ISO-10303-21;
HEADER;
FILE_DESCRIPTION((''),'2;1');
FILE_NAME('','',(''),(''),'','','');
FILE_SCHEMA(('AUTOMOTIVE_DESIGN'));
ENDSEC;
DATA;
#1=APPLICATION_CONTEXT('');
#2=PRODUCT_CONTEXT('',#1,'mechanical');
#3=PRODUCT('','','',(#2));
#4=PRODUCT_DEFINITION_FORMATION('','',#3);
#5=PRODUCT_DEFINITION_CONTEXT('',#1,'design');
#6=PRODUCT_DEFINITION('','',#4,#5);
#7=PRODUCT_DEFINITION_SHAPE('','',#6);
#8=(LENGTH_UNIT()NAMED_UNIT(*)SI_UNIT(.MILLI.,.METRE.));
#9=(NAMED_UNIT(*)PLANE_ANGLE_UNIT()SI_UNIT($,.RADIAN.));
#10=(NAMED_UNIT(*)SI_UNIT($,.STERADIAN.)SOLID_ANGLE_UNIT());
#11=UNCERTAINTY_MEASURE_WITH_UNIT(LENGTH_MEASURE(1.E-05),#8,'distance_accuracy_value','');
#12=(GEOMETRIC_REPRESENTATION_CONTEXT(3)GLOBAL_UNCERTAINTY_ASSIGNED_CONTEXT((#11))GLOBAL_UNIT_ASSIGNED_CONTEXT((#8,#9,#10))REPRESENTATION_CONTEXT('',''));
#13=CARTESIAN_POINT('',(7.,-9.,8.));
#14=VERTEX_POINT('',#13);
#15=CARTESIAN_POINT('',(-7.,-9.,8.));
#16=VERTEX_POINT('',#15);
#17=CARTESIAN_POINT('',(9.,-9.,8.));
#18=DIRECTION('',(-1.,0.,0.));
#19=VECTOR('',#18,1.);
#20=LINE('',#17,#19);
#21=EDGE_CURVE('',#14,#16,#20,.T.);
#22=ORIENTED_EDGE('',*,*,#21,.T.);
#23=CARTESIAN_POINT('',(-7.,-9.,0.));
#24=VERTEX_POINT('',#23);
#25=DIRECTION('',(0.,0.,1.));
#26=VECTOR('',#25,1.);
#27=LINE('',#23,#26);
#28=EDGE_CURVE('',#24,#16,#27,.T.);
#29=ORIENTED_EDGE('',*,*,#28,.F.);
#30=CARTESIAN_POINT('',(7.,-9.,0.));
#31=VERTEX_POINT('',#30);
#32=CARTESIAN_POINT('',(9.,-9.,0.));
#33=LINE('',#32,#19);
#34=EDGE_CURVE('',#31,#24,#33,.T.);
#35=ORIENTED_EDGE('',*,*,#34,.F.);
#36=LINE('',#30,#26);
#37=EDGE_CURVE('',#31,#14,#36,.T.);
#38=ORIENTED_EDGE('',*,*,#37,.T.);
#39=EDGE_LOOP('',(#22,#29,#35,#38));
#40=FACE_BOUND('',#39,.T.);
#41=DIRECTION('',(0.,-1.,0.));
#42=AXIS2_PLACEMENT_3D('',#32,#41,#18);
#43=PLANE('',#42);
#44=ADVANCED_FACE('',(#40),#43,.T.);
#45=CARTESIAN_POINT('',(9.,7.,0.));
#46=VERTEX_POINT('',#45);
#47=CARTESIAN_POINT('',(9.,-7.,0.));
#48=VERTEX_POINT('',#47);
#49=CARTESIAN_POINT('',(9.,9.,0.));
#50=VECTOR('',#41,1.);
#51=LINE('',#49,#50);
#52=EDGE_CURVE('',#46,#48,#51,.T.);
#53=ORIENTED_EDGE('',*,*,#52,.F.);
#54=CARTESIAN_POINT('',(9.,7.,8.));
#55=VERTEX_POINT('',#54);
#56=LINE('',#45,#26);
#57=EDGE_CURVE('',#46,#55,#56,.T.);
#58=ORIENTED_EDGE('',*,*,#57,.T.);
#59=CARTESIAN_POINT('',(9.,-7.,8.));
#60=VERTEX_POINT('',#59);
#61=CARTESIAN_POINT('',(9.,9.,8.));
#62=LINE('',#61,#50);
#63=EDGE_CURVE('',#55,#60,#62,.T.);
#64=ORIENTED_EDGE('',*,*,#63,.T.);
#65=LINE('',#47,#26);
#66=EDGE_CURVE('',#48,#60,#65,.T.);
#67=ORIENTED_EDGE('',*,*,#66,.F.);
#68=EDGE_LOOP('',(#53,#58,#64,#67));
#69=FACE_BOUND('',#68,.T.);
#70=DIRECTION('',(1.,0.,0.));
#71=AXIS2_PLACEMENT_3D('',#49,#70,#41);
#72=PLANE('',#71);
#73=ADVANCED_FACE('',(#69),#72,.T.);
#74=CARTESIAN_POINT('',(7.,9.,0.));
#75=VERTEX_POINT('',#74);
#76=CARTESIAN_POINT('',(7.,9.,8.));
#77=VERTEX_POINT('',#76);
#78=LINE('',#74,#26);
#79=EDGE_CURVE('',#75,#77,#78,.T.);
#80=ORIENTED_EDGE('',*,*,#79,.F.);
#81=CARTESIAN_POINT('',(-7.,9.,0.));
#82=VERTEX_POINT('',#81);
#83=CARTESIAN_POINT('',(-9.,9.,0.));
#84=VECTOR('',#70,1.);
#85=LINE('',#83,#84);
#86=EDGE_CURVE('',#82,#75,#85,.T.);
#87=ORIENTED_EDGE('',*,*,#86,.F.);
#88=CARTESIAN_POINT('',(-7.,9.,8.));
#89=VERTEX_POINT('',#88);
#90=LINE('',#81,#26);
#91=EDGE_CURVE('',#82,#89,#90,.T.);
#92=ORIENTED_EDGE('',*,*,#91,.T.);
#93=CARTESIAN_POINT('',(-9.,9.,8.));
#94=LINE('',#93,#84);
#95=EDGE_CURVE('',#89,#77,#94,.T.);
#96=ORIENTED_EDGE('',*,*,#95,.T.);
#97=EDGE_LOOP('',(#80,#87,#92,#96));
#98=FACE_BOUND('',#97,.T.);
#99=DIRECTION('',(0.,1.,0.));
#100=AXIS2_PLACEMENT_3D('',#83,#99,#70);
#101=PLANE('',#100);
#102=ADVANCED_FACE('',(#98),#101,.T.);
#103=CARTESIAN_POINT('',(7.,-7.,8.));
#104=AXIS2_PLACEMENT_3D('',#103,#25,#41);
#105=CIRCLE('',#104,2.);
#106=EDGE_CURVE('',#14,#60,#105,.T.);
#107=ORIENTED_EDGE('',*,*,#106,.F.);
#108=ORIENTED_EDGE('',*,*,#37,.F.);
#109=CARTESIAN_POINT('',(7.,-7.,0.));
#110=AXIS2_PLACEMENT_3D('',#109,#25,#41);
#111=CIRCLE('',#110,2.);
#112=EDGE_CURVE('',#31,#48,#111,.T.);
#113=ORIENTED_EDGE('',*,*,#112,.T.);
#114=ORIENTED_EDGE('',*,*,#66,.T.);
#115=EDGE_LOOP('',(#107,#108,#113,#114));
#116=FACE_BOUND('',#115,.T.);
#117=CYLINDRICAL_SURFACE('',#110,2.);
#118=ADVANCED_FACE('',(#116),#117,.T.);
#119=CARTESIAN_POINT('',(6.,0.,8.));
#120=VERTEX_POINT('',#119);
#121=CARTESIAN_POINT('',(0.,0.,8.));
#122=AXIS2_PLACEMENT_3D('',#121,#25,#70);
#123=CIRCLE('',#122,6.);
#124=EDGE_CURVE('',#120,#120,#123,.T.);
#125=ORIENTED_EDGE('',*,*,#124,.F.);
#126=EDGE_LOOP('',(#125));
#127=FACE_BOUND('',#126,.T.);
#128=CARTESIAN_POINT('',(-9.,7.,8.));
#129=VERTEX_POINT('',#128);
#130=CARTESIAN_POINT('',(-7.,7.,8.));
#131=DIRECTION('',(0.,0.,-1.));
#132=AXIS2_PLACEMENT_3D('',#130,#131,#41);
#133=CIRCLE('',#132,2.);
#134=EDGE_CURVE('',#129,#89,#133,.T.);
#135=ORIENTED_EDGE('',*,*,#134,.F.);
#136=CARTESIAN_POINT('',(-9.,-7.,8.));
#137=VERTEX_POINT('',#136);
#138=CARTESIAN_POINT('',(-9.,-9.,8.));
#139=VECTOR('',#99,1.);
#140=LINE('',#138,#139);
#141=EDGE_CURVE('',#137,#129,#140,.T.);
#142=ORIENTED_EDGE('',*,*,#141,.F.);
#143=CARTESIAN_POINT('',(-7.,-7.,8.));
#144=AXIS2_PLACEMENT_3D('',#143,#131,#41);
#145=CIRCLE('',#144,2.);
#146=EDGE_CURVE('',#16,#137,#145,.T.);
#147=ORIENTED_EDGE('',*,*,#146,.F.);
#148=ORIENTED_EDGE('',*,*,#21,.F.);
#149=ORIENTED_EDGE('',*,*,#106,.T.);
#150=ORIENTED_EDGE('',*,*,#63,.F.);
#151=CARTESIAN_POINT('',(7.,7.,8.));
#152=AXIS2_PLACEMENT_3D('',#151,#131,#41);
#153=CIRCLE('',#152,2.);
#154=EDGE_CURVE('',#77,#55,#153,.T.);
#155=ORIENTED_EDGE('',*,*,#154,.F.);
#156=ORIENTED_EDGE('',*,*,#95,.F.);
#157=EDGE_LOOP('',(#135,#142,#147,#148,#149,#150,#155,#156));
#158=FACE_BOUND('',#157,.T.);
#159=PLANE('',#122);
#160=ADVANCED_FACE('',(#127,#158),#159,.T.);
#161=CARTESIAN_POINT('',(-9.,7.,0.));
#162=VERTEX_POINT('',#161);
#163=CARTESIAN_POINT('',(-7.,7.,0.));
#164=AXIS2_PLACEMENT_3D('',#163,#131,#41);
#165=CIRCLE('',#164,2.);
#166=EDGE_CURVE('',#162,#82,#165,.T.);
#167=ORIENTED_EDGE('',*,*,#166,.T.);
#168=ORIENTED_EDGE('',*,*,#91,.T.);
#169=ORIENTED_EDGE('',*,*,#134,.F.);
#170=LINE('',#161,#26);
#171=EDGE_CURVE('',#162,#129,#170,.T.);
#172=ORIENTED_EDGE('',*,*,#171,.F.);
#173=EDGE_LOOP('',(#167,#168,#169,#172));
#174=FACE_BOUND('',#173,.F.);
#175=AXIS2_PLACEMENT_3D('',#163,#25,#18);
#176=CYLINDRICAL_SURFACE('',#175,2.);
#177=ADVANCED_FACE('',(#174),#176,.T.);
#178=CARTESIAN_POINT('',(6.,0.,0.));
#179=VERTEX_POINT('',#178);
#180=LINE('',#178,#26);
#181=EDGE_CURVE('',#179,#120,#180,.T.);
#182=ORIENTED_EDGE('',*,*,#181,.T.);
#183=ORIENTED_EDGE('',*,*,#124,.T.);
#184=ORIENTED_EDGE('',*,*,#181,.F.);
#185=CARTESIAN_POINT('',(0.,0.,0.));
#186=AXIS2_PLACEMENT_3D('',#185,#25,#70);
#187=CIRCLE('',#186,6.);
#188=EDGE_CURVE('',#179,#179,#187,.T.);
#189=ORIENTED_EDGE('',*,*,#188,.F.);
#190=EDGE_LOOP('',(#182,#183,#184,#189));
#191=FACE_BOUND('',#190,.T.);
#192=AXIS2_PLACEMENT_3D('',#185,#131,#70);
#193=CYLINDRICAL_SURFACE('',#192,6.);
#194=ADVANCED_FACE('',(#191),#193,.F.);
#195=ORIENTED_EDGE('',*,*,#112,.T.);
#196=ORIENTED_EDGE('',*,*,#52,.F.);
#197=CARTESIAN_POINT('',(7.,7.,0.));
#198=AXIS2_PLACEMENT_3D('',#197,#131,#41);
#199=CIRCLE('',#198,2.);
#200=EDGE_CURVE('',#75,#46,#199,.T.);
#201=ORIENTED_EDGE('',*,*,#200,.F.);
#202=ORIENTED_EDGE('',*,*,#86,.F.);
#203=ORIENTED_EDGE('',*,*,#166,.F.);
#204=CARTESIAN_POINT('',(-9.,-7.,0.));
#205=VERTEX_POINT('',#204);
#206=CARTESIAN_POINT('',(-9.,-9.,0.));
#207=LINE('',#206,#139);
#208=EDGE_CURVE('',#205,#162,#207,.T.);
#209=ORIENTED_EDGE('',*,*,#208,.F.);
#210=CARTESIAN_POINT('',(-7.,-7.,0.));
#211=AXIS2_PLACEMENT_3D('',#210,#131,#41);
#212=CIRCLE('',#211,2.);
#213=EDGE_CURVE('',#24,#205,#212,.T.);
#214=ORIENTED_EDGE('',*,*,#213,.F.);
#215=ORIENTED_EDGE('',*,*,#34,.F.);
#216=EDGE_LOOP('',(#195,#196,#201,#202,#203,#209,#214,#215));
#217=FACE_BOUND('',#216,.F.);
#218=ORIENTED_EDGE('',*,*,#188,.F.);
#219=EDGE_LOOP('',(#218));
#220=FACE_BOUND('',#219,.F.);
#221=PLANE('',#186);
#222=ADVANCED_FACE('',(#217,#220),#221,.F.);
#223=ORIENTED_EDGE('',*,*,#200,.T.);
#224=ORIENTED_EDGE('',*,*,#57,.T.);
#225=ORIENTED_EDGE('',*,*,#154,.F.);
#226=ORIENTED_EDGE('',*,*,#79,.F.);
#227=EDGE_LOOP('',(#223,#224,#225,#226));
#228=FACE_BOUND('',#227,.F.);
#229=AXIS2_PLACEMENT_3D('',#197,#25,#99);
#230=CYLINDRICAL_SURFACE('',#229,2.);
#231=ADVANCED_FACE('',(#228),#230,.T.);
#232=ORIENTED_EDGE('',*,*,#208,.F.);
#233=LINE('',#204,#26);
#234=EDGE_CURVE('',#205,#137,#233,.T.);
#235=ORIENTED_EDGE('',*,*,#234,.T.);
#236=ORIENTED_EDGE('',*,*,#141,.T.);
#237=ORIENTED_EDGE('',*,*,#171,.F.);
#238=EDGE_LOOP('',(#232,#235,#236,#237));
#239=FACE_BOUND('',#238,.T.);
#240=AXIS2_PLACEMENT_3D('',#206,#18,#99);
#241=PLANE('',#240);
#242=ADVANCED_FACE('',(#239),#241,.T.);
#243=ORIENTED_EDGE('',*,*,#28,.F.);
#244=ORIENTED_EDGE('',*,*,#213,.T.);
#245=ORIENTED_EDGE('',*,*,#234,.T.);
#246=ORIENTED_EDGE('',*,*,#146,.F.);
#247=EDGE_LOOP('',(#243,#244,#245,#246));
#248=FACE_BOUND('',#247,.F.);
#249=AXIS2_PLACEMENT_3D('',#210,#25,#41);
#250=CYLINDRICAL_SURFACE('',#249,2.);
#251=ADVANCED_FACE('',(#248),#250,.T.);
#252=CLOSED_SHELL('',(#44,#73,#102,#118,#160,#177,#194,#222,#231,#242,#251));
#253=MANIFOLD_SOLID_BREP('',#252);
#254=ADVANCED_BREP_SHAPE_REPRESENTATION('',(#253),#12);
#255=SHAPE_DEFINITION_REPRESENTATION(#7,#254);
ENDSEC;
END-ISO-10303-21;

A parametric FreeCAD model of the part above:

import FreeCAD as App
import Part
import Sketcher

V = App.Vector
Q = App.Units.Quantity


def edges_at(feature, points):
    """Names of the edges that pass closest to the given points."""
    edges = feature.Shape.Edges
    near = lambda p: min(range(len(edges)), key=lambda i: edges[i].distToShape(Part.Vertex(*p))[0])
    return sorted({f"Edge{near(p) + 1}" for p in points})


def add_polygon(sketch, points):
    """Adds a closed chain of lines whose ends are joined by coincident constraints."""
    first, n = sketch.GeometryCount, len(points)
    for a, b in zip(points, points[1:] + points[:1]):
        sketch.addGeometry(Part.LineSegment(App.Vector(*a, 0), App.Vector(*b, 0)), False)
    for i in range(n):
        sketch.addConstraint(Sketcher.Constraint("Coincident", first + i, 2, first + (i + 1) % n, 1))

doc = App.newDocument("Part")
body = doc.addObject("PartDesign::Body", "Body")

# Sketch on XY plane
sketch1 = body.newObject("Sketcher::SketchObject", "Sketch")
sketch1.AttachmentSupport = (doc.getObject("XY_Plane"), [""])
sketch1.MapMode = "FlatFace"
add_polygon(sketch1, [(-9, -9), (9, -9), (9, 9), (-9, 9)])  # lines 0-3
sketch1.addGeometry(Part.Circle(V(0, 0, 0), V(0, 0, 1), 6), False)  # 4
sketch1.addConstraint([
    Sketcher.Constraint("Horizontal", 0),
    Sketcher.Constraint("Vertical", 1),
    Sketcher.Constraint("Horizontal", 2),
    Sketcher.Constraint("Vertical", 3),
    Sketcher.Constraint("Coincident", 4, 3, -1, 1),
    Sketcher.Constraint("Symmetric", 0, 2, 2, 2, -1, 1),
    Sketcher.Constraint("Equal", 2, 1),
    Sketcher.Constraint("Diameter", 4, Q("12 mm")),
    Sketcher.Constraint("DistanceX", 0, 1, 0, 2, Q("18 mm")),
])
pad1 = body.newObject("PartDesign::Pad", "Pad")
pad1.Profile = sketch1
pad1.Length = 8
doc.recompute()

fillet = body.newObject("PartDesign::Fillet", "Fillet")
fillet.Base = (pad1, edges_at(pad1, [
    (9, 9, 4),
    (-9, 9, 4),
    (9, -9, 4),
    (-9, -9, 4),
]))
fillet.Radius = 2

doc.recompute()
